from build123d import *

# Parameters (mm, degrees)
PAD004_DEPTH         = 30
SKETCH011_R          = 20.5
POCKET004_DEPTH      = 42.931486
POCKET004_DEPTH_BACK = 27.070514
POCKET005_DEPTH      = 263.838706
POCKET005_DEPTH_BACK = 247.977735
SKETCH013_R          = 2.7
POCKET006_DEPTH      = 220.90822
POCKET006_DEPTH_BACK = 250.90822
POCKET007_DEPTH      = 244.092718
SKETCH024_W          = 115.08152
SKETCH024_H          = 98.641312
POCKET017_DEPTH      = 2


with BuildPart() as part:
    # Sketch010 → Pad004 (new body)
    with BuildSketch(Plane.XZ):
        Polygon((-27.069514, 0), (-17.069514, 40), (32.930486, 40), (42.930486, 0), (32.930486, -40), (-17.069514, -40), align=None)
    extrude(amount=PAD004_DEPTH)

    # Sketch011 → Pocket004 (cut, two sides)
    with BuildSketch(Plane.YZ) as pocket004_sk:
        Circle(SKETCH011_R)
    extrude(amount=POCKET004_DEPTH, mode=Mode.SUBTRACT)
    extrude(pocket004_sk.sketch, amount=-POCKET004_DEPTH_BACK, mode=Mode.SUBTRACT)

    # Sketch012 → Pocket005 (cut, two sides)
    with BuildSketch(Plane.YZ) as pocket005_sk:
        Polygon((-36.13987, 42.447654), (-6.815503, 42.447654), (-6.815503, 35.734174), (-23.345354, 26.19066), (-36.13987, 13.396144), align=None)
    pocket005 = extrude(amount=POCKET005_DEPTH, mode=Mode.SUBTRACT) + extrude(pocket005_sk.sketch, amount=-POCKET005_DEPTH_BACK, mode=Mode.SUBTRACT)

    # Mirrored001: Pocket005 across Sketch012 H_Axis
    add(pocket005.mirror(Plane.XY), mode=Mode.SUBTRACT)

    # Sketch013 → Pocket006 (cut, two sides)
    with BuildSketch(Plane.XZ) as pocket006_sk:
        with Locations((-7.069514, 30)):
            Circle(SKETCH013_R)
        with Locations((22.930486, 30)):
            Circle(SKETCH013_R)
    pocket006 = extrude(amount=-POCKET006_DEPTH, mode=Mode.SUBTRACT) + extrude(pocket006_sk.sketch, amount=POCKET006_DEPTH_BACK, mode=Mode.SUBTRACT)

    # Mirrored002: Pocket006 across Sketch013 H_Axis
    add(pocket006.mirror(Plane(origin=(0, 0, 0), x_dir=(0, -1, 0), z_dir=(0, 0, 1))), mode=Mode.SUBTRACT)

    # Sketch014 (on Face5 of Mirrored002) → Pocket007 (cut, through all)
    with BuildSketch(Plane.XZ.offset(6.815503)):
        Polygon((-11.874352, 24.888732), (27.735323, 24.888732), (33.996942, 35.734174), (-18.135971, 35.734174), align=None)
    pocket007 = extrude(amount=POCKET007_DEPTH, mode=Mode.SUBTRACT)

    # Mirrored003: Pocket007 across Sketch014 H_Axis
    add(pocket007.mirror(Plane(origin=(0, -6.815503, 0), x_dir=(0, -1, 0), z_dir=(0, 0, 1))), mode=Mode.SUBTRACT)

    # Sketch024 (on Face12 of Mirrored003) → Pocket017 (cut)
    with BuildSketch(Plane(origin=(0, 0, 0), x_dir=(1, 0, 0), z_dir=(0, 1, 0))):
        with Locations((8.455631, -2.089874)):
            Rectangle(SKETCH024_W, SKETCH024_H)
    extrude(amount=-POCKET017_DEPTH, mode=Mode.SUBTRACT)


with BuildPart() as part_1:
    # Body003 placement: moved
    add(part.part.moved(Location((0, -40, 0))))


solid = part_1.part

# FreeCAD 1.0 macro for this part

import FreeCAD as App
import Part
import Sketcher
from FreeCAD import Vector
Q = App.Units.Quantity


def add_polygon(sketch, points):
    """Adds a closed chain of lines whose ends are joined by coincident constraints."""
    first, n = sketch.GeometryCount, len(points)
    for a, b in zip(points, points[1:] + points[:1]):
        sketch.addGeometry(Part.LineSegment(App.Vector(*a, 0), App.Vector(*b, 0)), False)
    for i in range(n):
        sketch.addConstraint(Sketcher.Constraint("Coincident", first + i, 2, first + (i + 1) % n, 1))

doc = App.newDocument("Part")
body = doc.addObject("PartDesign::Body", "Body")

# Sketch on XZ plane
sketch1 = body.newObject("Sketcher::SketchObject", "Sketch")
sketch1.AttachmentSupport = (doc.getObject("XZ_Plane"), [""])
sketch1.MapMode = "FlatFace"
add_polygon(sketch1, [(-17, 40), (-27, 0), (-17, -40), (33, -40), (43, 0), (33, 40)])  # lines 0-5
sketch1.addConstraint(Sketcher.Constraint("Horizontal", 2))
sketch1.addConstraint(Sketcher.Constraint("Horizontal", 5))
sketch1.addConstraint(Sketcher.Constraint("Symmetric", 2, 2, 4, 2, -1))
sketch1.addConstraint(Sketcher.Constraint("PointOnObject", 0, 2, -1))
sketch1.addConstraint(Sketcher.Constraint("PointOnObject", 3, 2, -1))
sketch1.addConstraint(Sketcher.Constraint("Parallel", 0, 3))
sketch1.addConstraint(Sketcher.Constraint("Parallel", 1, 4))
sketch1.addConstraint(Sketcher.Constraint("DistanceX", 2, 1, 2, 2, Q("50 mm")))
sketch1.addConstraint(Sketcher.Constraint("DistanceY", 1, 2, -1, 1, Q("40 mm")))
sketch1.addConstraint(Sketcher.Constraint("DistanceX", 0, 2, 1, 2, Q("10 mm")))
sketch1.addConstraint(Sketcher.Constraint("DistanceX", 0, 2, -1, 1, Q("27.069514 mm")))
pad1 = body.newObject("PartDesign::Pad", "Pad")
pad1.Profile = sketch1
pad1.Length = 30

# Sketch on YZ plane
sketch2 = body.newObject("Sketcher::SketchObject", "Sketch001")
sketch2.AttachmentSupport = (doc.getObject("YZ_Plane"), [""])
sketch2.MapMode = "FlatFace"
sketch2.addGeometry(Part.Circle(Vector(0, 0, 0), Vector(0, 0, 1), 20), False)
sketch2.addConstraint(Sketcher.Constraint("Coincident", 0, 3, -1, 1))
sketch2.addConstraint(Sketcher.Constraint("Diameter", 0, Q("41 mm")))
pocket1 = body.newObject("PartDesign::Pocket", "Pocket")
pocket1.Profile = sketch2
pocket1.Type = "ThroughAll"
pocket1.Midplane = True

# Sketch on YZ plane
sketch3 = body.newObject("Sketcher::SketchObject", "Sketch002")
sketch3.AttachmentSupport = (doc.getObject("YZ_Plane"), [""])
sketch3.MapMode = "FlatFace"
add_polygon(sketch3, [(-7, 42), (-36, 42), (-36, 13), (-23, 26), (-7, 36)])  # lines 0-4
sketch3.addConstraint(Sketcher.Constraint("Horizontal", 0))
sketch3.addConstraint(Sketcher.Constraint("Vertical", 1))
sketch3.addConstraint(Sketcher.Constraint("Vertical", 4))
sketch3.addConstraint(Sketcher.Constraint("Angle", 2, Q("45 deg")))
sketch3.addConstraint(Sketcher.Constraint("Angle", 3, Q("30 deg")))
sketch3.addConstraint(Sketcher.Constraint("DistanceY", 1, 2, 1, 1, Q("29.05151 mm")))
sketch3.addConstraint(Sketcher.Constraint("DistanceY", 4, 1, 4, 2, Q("6.71348 mm")))
sketch3.addConstraint(Sketcher.Constraint("Distance", 2, Q("18.094178 mm")))
sketch3.addConstraint(Sketcher.Constraint("DistanceX", 0, 2, -1, 1, Q("36.13987 mm")))
sketch3.addConstraint(Sketcher.Constraint("DistanceY", -1, 1, 2, 2, Q("26.19066 mm")))
pocket2 = body.newObject("PartDesign::Pocket", "Pocket001")
pocket2.Profile = sketch3
pocket2.Type = "ThroughAll"
pocket2.Midplane = True
doc.recompute()

mirrored = body.newObject("PartDesign::Mirrored", "Mirrored")
mirrored.Originals = [pocket2]
mirrored.MirrorPlane = (doc.getObject("XY_Plane"), [""])
body.Tip = mirrored

# Sketch on XZ plane
sketch4 = body.newObject("Sketcher::SketchObject", "Sketch003")
sketch4.AttachmentSupport = (doc.getObject("XZ_Plane"), [""])
sketch4.MapMode = "FlatFace"
sketch4.addGeometry(Part.Circle(Vector(-7.1, 30, 0), Vector(0, 0, 1), 2.7), False)
sketch4.addGeometry(Part.Circle(Vector(22.9, 30, 0), Vector(0, 0, 1), 2.7), False)
sketch4.addConstraint(Sketcher.Constraint("Equal", 0, 1))
sketch4.addConstraint(Sketcher.Constraint("Horizontal", 0, 3, 1, 3))
sketch4.addConstraint(Sketcher.Constraint("Diameter", 0, Q("5.4 mm")))
sketch4.addConstraint(Sketcher.Constraint("DistanceY", -1, 1, 0, 3, Q("30 mm")))
sketch4.addConstraint(Sketcher.Constraint("DistanceX", 0, 3, 1, 3, Q("30 mm")))
sketch4.addConstraint(Sketcher.Constraint("DistanceX", 0, 3, -1, 1, Q("7.069514 mm")))
pocket3 = body.newObject("PartDesign::Pocket", "Pocket002")
pocket3.Profile = sketch4
pocket3.Type = "ThroughAll"
pocket3.Midplane = True
doc.recompute()

mirrored2 = body.newObject("PartDesign::Mirrored", "Mirrored001")
mirrored2.Originals = [pocket3]
mirrored2.MirrorPlane = (doc.getObject("XY_Plane"), [""])
body.Tip = mirrored2

# Sketch on XZ plane
sketch5 = body.newObject("Sketcher::SketchObject", "Sketch004")
sketch5.AttachmentSupport = (doc.getObject("XZ_Plane"), [""])
sketch5.MapMode = "FlatFace"
sketch5.AttachmentOffset = App.Placement(Vector(0, 0, 6.815503), App.Rotation())
add_polygon(sketch5, [(-12, 25), (28, 25), (34, 36), (-18, 36)])  # lines 0-3
sketch5.addConstraint(Sketcher.Constraint("Horizontal", 0))
sketch5.addConstraint(Sketcher.Constraint("Horizontal", 2))
sketch5.addConstraint(Sketcher.Constraint("Equal", 1, 3))
sketch5.addConstraint(Sketcher.Constraint("Angle", 1, Q("59.999999 deg")))
sketch5.addConstraint(Sketcher.Constraint("DistanceX", 0, 1, 0, 2, Q("39.609675 mm")))
sketch5.addConstraint(Sketcher.Constraint("DistanceX", 2, 2, 2, 1, Q("52.132913 mm")))
sketch5.addConstraint(Sketcher.Constraint("DistanceX", -1, 1, 1, 2, Q("33.996942 mm")))
sketch5.addConstraint(Sketcher.Constraint("DistanceY", -1, 1, 0, 2, Q("24.888732 mm")))
pocket4 = body.newObject("PartDesign::Pocket", "Pocket003")
pocket4.Profile = sketch5
pocket4.Type = "ThroughAll"
pocket4.Reversed = True
doc.recompute()

mirrored3 = body.newObject("PartDesign::Mirrored", "Mirrored002")
mirrored3.Originals = [pocket4]
mirrored3.MirrorPlane = (doc.getObject("XY_Plane"), [""])
body.Tip = mirrored3

# Sketch on XZ plane
sketch6 = body.newObject("Sketcher::SketchObject", "Sketch005")
sketch6.AttachmentSupport = (doc.getObject("XZ_Plane"), [""])
sketch6.MapMode = "FlatFace"
add_polygon(sketch6, [(-49, -47), (-49, 51), (66, 51), (66, -47)])  # lines 0-3
sketch6.addConstraint(Sketcher.Constraint("Vertical", 0))
sketch6.addConstraint(Sketcher.Constraint("Horizontal", 1))
sketch6.addConstraint(Sketcher.Constraint("Vertical", 2))
sketch6.addConstraint(Sketcher.Constraint("Horizontal", 3))
sketch6.addConstraint(Sketcher.Constraint("DistanceX", 1, 1, 1, 2, Q("115.08152 mm")))
sketch6.addConstraint(Sketcher.Constraint("DistanceY", 0, 1, 0, 2, Q("98.641312 mm")))
sketch6.addConstraint(Sketcher.Constraint("DistanceX", 0, 2, -1, 1, Q("49.085129 mm")))
sketch6.addConstraint(Sketcher.Constraint("DistanceY", -1, 1, 0, 2, Q("51.41053 mm")))
pocket5 = body.newObject("PartDesign::Pocket", "Pocket004")
pocket5.Profile = sketch6
pocket5.Length = 2
pocket5.Reversed = True
body2 = doc.addObject("PartDesign::Body", "Body001")
doc.recompute()

body.Placement = App.Placement(Vector(0, -40, 0), App.Rotation(Vector(0, 0, 1), 0))
boolean = body2.newObject("PartDesign::Boolean", "Boolean")
boolean.Type = "Fuse"
boolean.addObjects([body])

doc.recompute()
